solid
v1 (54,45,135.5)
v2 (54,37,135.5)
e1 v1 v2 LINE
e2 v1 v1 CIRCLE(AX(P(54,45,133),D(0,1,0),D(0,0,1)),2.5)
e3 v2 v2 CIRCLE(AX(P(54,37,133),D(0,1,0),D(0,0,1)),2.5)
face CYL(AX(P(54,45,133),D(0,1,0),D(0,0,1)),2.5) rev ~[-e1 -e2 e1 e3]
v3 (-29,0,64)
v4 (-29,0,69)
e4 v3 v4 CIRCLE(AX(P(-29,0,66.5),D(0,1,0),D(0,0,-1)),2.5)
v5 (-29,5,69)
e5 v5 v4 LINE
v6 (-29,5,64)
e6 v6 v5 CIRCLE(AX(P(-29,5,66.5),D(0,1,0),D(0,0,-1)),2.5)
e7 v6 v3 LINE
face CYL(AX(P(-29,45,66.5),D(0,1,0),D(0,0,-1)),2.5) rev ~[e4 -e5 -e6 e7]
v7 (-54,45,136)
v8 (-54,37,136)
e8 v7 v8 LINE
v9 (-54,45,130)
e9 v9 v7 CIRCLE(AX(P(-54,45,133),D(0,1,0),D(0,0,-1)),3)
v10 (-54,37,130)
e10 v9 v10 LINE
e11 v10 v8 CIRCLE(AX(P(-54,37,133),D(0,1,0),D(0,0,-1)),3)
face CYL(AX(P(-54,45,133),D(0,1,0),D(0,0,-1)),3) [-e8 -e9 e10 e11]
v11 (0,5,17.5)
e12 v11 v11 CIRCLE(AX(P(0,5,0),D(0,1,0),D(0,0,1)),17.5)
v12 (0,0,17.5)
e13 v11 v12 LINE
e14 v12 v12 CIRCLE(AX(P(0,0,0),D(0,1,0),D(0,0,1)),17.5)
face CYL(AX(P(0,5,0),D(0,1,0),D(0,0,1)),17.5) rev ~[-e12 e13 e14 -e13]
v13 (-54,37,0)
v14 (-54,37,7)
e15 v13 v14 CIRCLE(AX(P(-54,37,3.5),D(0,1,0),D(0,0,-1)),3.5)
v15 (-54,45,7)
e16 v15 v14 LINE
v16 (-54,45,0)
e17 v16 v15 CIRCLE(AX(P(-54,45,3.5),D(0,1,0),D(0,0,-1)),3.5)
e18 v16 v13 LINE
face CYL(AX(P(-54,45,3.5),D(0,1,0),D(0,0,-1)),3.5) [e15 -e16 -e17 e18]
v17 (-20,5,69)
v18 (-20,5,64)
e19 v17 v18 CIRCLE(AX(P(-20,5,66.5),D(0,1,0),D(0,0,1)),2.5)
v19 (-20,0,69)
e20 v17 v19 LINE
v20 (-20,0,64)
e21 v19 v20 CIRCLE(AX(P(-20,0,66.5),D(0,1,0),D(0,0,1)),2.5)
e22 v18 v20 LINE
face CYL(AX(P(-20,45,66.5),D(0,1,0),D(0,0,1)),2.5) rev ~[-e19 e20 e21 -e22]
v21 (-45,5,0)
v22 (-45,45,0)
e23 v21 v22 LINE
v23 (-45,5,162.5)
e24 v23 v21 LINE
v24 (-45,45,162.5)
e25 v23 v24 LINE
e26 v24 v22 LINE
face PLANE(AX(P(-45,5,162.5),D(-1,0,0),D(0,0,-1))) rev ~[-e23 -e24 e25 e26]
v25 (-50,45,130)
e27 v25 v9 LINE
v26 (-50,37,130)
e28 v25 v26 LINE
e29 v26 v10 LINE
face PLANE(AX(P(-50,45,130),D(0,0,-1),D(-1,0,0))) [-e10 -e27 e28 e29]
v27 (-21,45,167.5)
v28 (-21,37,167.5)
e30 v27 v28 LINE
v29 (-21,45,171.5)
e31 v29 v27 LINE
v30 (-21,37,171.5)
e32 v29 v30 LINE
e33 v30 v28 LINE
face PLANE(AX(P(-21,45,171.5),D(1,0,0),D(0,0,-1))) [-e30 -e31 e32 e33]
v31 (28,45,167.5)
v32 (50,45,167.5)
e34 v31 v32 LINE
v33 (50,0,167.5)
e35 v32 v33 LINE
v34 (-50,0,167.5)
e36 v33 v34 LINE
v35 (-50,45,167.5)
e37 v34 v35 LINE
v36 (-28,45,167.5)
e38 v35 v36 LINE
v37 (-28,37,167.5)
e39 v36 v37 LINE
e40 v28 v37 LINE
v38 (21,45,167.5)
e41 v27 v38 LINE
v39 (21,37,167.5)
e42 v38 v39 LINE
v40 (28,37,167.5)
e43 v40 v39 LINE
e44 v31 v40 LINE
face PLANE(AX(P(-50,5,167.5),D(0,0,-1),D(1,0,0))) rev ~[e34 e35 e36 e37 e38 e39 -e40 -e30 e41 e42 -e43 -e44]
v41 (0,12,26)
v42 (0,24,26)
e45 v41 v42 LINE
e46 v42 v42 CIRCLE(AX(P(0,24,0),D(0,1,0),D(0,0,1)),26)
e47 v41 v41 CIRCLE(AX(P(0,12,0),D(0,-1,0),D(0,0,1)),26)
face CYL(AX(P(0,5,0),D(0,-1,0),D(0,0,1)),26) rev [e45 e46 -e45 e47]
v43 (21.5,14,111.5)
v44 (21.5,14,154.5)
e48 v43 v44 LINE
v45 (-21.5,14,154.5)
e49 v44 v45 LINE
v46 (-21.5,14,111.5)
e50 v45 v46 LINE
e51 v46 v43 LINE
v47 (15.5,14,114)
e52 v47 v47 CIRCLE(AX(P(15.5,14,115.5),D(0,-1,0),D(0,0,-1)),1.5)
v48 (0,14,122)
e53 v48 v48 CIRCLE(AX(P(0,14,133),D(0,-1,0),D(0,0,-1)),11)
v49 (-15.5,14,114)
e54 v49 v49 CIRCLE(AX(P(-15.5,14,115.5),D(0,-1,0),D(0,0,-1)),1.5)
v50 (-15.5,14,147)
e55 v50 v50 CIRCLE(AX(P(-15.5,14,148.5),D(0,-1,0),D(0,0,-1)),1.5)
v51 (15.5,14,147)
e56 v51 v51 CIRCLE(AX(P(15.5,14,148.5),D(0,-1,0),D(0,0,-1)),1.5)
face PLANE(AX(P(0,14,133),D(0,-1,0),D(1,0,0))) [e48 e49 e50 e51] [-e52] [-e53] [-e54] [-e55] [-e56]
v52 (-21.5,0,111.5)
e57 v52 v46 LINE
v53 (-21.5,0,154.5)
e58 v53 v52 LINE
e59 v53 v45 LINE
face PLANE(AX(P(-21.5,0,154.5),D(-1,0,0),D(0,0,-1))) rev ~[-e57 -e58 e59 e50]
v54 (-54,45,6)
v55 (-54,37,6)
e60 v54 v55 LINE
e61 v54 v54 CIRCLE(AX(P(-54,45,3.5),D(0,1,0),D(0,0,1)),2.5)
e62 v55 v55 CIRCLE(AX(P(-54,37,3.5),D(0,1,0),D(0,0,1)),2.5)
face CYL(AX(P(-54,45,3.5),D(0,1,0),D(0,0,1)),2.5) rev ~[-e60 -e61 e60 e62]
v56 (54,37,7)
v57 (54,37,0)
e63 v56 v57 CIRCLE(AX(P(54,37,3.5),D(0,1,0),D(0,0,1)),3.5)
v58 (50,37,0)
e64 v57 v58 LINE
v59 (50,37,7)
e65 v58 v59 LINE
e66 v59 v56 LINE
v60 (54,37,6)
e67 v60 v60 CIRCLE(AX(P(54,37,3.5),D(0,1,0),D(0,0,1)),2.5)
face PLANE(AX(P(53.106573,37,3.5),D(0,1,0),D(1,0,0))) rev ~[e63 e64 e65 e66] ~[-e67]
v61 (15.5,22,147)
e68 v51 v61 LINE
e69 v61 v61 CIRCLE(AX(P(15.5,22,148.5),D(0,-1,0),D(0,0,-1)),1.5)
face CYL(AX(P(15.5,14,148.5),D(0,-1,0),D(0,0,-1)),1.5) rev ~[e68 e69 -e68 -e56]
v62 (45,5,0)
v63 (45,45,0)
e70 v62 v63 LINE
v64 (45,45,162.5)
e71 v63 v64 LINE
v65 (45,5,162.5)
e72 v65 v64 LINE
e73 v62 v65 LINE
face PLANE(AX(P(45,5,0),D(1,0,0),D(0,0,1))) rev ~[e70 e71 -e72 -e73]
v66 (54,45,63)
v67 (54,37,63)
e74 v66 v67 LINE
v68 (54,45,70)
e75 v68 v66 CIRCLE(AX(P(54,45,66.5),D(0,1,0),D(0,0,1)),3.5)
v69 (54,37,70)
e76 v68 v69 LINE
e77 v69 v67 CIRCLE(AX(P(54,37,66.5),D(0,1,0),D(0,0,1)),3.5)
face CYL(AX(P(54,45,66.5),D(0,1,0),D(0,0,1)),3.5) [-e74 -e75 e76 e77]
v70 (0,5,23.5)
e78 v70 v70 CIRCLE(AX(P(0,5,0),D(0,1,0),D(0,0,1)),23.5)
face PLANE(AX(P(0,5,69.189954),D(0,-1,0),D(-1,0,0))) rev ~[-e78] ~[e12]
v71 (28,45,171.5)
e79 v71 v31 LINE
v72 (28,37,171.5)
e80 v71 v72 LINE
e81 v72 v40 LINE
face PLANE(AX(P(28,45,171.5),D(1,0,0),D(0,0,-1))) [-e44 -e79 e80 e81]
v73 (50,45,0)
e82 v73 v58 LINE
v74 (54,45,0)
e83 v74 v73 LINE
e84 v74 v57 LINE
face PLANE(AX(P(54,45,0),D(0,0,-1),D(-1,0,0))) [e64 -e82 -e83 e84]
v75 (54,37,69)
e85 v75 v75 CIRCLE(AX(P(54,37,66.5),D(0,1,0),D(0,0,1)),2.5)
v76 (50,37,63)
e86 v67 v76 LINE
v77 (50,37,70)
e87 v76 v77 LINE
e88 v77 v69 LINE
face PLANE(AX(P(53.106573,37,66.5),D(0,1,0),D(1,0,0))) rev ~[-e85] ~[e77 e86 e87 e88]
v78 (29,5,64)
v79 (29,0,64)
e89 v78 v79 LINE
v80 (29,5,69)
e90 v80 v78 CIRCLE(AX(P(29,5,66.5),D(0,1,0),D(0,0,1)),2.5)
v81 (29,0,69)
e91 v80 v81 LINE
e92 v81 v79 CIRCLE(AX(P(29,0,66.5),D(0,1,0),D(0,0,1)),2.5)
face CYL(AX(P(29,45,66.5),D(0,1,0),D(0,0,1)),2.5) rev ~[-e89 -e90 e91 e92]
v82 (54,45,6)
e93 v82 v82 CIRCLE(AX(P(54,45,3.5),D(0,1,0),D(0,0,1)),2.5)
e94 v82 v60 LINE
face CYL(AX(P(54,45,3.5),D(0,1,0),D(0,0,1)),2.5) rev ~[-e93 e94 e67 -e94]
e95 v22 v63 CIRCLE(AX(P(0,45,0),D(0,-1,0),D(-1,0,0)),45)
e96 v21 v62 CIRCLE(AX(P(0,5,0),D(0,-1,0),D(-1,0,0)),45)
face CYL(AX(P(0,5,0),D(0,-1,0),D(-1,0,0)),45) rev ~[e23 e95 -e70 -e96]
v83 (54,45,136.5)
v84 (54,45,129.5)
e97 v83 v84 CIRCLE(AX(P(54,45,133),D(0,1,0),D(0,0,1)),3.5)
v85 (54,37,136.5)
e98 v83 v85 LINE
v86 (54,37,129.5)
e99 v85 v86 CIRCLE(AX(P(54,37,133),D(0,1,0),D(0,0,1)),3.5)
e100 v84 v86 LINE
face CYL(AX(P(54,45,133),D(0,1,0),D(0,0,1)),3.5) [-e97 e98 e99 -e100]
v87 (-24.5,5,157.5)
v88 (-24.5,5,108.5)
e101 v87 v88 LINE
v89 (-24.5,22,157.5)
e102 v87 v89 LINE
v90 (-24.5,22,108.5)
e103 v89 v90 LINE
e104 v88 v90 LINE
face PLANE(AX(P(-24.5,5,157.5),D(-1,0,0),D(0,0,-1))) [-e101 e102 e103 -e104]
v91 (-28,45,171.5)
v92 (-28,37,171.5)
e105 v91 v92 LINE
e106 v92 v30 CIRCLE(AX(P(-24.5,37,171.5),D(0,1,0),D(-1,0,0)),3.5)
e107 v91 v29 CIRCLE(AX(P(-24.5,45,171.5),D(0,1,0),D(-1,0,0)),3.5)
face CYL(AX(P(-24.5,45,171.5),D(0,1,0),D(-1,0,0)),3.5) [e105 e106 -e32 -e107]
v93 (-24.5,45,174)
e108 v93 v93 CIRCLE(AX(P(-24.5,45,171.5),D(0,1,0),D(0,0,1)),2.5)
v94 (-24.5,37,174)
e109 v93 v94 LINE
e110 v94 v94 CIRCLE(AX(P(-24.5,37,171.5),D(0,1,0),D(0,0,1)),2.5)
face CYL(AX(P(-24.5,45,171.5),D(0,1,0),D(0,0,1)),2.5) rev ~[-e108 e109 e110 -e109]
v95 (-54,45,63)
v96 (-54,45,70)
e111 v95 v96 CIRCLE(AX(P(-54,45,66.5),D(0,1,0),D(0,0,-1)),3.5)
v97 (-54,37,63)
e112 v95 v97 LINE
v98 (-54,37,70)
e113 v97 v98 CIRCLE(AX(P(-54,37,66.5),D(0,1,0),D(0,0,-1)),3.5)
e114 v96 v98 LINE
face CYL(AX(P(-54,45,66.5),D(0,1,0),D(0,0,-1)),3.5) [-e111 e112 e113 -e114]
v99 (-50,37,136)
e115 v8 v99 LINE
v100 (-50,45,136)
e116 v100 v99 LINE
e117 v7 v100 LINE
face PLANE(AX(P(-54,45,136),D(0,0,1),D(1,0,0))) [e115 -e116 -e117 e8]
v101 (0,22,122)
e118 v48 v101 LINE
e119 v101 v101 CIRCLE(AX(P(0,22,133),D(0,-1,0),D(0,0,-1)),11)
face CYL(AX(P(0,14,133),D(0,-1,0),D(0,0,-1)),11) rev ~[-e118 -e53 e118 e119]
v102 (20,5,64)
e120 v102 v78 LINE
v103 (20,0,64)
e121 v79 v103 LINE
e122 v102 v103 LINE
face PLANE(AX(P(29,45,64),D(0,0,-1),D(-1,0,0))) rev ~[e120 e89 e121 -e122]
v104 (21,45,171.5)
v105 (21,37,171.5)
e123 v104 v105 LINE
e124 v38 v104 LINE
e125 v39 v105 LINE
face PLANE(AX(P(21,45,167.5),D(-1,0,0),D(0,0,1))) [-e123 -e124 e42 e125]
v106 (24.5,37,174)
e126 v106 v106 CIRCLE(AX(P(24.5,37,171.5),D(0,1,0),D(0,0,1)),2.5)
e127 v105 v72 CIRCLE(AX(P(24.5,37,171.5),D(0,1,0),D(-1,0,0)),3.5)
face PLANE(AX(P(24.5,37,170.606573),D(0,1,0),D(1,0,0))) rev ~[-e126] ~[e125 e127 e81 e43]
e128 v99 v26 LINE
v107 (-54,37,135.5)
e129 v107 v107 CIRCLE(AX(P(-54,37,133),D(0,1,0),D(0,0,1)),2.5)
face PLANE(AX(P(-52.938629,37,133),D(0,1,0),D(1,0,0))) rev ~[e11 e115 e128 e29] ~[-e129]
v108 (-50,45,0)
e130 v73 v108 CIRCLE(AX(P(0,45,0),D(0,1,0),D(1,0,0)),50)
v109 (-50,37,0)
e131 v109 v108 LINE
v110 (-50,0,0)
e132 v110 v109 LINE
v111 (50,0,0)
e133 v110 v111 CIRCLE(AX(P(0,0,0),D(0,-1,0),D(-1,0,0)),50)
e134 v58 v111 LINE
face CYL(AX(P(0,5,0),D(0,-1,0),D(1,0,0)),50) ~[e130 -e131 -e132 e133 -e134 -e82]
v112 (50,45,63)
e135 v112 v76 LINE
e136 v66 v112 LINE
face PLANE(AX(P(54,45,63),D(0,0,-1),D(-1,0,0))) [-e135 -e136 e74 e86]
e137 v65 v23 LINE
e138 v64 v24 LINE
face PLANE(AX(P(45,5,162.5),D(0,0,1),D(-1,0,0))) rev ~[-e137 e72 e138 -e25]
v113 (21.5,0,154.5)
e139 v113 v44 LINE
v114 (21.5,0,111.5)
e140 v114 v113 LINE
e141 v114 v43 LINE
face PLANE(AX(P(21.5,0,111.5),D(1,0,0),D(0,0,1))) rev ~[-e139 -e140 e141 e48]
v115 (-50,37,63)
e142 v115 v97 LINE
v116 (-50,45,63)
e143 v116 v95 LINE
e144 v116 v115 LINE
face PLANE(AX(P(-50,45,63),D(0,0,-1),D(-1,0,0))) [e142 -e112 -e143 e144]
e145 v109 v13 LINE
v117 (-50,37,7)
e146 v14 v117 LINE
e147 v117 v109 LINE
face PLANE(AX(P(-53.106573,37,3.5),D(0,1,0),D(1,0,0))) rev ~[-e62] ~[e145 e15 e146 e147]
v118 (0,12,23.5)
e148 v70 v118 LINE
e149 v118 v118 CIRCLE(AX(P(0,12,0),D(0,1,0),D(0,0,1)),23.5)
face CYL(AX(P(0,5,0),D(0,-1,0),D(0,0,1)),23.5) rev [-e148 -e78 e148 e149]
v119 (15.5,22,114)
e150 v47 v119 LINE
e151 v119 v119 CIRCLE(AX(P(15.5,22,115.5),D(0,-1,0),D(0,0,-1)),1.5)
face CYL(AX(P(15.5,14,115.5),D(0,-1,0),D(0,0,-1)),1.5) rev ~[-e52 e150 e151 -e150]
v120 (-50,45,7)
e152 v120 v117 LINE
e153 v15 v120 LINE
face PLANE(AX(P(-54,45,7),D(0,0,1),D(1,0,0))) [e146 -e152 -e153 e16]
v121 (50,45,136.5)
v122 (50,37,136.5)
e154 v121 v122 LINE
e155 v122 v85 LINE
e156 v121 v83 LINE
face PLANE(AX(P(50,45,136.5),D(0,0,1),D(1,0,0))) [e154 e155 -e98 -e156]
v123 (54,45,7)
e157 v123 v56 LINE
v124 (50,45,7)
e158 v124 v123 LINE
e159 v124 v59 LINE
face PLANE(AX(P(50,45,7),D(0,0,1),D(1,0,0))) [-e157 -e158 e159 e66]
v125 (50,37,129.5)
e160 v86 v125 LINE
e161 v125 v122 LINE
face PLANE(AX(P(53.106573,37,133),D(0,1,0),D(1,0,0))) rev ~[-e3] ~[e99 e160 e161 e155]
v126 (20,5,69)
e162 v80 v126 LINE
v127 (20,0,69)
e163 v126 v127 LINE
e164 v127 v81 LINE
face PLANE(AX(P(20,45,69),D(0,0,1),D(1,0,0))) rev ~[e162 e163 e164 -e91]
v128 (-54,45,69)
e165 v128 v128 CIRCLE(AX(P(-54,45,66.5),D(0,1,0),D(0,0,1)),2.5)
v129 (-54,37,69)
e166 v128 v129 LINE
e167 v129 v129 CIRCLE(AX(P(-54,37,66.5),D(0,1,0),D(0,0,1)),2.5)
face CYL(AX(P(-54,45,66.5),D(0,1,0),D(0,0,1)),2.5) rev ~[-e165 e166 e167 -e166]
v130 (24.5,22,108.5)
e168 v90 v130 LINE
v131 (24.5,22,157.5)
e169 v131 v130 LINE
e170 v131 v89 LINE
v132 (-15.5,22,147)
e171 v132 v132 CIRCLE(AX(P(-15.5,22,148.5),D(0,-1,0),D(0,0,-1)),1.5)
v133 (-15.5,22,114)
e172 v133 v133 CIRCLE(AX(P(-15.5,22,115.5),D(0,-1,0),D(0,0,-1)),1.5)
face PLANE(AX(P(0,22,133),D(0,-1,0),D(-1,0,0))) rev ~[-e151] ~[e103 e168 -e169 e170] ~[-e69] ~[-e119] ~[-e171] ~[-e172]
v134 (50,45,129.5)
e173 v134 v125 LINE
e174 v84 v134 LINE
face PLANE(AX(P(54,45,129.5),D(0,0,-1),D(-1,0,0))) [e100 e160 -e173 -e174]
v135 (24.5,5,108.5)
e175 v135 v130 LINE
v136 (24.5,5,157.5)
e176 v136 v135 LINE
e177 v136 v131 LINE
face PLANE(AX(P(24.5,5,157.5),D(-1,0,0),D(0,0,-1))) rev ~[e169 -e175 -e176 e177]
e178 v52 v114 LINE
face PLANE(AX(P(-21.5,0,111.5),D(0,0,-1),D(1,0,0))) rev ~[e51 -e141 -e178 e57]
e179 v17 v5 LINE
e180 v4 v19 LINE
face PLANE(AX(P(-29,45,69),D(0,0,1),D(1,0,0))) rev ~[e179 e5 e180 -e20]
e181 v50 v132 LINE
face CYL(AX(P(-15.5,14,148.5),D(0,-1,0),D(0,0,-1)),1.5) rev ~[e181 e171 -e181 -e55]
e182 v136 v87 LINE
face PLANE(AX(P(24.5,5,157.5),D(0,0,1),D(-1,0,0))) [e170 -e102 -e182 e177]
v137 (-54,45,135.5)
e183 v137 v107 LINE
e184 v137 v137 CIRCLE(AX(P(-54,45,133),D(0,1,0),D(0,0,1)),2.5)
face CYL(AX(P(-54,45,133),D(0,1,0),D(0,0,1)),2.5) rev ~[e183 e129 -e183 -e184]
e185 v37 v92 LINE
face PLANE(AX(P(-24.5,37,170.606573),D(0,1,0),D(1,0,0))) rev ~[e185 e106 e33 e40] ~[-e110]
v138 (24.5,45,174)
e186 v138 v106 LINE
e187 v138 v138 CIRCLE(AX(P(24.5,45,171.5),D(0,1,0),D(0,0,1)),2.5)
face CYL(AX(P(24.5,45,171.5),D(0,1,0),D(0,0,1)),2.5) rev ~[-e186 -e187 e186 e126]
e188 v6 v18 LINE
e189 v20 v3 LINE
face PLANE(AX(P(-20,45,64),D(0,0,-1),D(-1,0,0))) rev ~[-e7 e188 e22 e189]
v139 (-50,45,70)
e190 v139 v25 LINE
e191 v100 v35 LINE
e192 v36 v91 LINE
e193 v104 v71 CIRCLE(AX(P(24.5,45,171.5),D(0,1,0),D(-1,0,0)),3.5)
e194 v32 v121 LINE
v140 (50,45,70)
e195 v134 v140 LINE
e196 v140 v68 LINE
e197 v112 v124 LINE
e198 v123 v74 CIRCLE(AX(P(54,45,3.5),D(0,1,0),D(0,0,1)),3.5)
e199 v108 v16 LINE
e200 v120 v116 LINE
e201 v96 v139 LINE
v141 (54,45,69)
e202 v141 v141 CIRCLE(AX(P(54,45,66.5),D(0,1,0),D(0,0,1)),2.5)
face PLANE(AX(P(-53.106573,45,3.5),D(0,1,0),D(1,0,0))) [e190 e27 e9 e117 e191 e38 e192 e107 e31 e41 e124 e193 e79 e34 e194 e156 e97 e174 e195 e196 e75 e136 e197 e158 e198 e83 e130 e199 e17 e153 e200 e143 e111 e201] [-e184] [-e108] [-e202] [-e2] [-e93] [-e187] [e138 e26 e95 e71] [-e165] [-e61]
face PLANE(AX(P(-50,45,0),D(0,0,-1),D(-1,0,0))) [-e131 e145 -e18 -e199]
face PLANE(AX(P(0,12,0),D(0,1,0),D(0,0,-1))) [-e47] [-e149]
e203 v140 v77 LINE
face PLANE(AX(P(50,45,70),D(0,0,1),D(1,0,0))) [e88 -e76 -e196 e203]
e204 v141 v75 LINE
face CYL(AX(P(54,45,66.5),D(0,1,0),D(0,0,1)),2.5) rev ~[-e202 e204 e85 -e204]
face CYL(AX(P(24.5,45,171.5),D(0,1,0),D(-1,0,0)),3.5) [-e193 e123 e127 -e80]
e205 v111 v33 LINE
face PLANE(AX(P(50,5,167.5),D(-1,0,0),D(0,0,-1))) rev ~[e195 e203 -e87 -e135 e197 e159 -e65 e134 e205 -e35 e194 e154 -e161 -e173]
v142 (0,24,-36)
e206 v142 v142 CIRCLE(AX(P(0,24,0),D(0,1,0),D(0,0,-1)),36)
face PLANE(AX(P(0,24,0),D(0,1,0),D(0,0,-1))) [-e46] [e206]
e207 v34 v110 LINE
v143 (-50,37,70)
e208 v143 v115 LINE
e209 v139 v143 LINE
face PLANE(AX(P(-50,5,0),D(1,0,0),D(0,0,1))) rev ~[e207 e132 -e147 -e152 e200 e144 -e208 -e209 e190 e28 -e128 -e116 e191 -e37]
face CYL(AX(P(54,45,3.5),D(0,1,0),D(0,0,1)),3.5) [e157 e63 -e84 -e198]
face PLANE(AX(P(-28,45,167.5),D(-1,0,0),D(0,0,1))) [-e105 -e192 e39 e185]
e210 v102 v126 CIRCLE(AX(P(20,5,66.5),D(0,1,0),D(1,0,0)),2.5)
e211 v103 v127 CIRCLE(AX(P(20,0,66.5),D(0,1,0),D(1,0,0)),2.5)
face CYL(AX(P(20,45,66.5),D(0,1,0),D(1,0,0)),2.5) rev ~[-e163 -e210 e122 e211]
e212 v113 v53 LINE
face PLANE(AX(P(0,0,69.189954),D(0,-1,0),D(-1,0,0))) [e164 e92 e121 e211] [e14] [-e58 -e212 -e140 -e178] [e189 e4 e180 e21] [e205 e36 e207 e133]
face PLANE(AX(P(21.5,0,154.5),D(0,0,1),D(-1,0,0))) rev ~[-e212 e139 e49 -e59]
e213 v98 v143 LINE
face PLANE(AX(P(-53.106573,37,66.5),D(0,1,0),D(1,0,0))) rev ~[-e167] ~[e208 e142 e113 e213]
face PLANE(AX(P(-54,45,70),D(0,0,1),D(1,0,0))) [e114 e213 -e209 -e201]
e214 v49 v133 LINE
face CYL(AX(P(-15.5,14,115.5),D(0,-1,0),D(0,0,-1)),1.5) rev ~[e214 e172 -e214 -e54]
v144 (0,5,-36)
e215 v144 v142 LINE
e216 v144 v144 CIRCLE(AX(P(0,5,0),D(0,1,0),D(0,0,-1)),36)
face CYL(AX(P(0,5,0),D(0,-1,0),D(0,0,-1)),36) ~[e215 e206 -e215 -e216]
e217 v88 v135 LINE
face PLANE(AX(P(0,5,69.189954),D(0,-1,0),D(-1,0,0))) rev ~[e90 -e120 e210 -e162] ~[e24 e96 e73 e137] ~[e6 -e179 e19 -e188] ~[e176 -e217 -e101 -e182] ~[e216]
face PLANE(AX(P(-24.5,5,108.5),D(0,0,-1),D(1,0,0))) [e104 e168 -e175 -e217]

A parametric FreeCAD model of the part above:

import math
import FreeCAD as App
import Part
import Sketcher
from FreeCAD import Vector

doc = App.newDocument("Part")
params = doc.addObject("Spreadsheet::Sheet", "Params")
for row, (alias, value) in enumerate([
    ("sketch1_radius", "50 mm"),
    ("sketch1_height", "167.5 mm"),
    ("pad1_length", "5 mm"),
    ("sketch2_radius", "50 mm"),
    ("sketch2_radius2", "45 mm"),
    ("sketch2_height", "167.5 mm"),
    ("sketch2_height2", "162.5 mm"),
    ("pad2_length", "40 mm"),
    ("sketch3_diameter", "35 mm"),
    ("pocket1_length", "40 mm"),
    ("sketch4_diameter", "52 mm"),
    ("sketch4_diameter2", "47 mm"),
    ("pad3_length", "7 mm"),
    ("sketch5_diameter", "72 mm"),
    ("sketch5_diameter2", "52 mm"),
    ("pad4_length", "19 mm"),
    ("sketch6_width", "49 mm"),
    ("pad5_length", "17 mm"),
    ("sketch7_width", "43 mm"),
    ("pocket2_length", "14 mm"),
    ("sketch8_diameter", "3 mm"),
    ("sketch8_diameter2", "22 mm"),
    ("pocket3_length", "14 mm"),
    ("sketch9_radius", "2.5 mm"),
    ("sketch9_width", "9 mm"),
    ("pocket4_length", "45 mm"),
    ("sketch10_diameter", "5 mm"),
    ("sketch10_radius", "3 mm"),
    ("sketch10_radius2", "3.5 mm"),
    ("sketch10_width", "4 mm"),
    ("pad6_length", "8 mm"),
], start=1):
    params.set(f"A{row}", alias)
    params.set(f"B{row}", "=" + value)
    params.setAlias(f"B{row}", alias)

body = doc.addObject("PartDesign::Body", "Body")

sketch1 = body.newObject("Sketcher::SketchObject", "Sketch")
sketch1.AttachmentSupport = (doc.getObject("XZ_Plane"), [""])
sketch1.MapMode = "FlatFace"
sketch1.addGeometry([
    Part.LineSegment(Vector(50, 167.5, 0), Vector(50, 0, 0)),
    Part.ArcOfCircle(Part.Circle(Vector(0, 0, 0), Vector(0, 0, 1), 50), math.radians(180), math.radians(360)),
    Part.LineSegment(Vector(-50, 0, 0), Vector(-50, 167.5, 0)),
    Part.LineSegment(Vector(-50, 167.5, 0), Vector(50, 167.5, 0)),
], False)
sketch1.addConstraint([
    Sketcher.Constraint("Tangent", 0, 2, 1, 2),
    Sketcher.Constraint("Tangent", 1, 1, 2, 1),
    Sketcher.Constraint("Coincident", 2, 2, 3, 1),
    Sketcher.Constraint("Coincident", 3, 2, 0, 1),
    Sketcher.Constraint("Vertical", 0),
    Sketcher.Constraint("Vertical", 2),
    Sketcher.Constraint("Horizontal", 3),
    Sketcher.Constraint("Coincident", 1, 3, -1, 1),
    Sketcher.Constraint("Radius", 1, 50.0),
    Sketcher.Constraint("DistanceY", 0, 2, 0, 1, 167.5),
])
sketch1.setExpression("Constraints[8]", "Params.sketch1_radius")
sketch1.setExpression("Constraints[9]", "Params.sketch1_height")
pad1 = body.newObject("PartDesign::Pad", "Pad")
pad1.Profile = sketch1
pad1.setExpression("Length", "Params.pad1_length")
pad1.Reversed = True

sketch2 = body.newObject("Sketcher::SketchObject", "Sketch001")
sketch2.AttachmentSupport = (doc.getObject("XZ_Plane"), [""])
sketch2.MapMode = "FlatFace"
sketch2.AttachmentOffset = App.Placement(Vector(0, 0, -5), App.Rotation())
sketch2.addGeometry([
    Part.ArcOfCircle(Part.Circle(Vector(0, 0, 0), Vector(0, 0, 1), 50), math.radians(180), math.radians(360)),
    Part.LineSegment(Vector(-50, 0, 0), Vector(-50, 167.5, 0)),
    Part.LineSegment(Vector(-50, 167.5, 0), Vector(50, 167.5, 0)),
    Part.LineSegment(Vector(50, 167.5, 0), Vector(50, 0, 0)),
    Part.LineSegment(Vector(45, 162.5, 0), Vector(-45, 162.5, 0)),
    Part.LineSegment(Vector(-45, 162.5, 0), Vector(-45, 0, 0)),
    Part.ArcOfCircle(Part.Circle(Vector(0, 0, 0), Vector(0, 0, 1), 45), math.radians(180), math.radians(360)),
    Part.LineSegment(Vector(45, 0, 0), Vector(45, 162.5, 0)),
], False)
sketch2.addConstraint([
    Sketcher.Constraint("Tangent", 0, 1, 1, 1),
    Sketcher.Constraint("Coincident", 1, 2, 2, 1),
    Sketcher.Constraint("Coincident", 2, 2, 3, 1),
    Sketcher.Constraint("Tangent", 3, 2, 0, 2),
    Sketcher.Constraint("Coincident", 4, 2, 5, 1),
    Sketcher.Constraint("Tangent", 5, 2, 6, 1),
    Sketcher.Constraint("Tangent", 6, 2, 7, 1),
    Sketcher.Constraint("Coincident", 7, 2, 4, 1),
    Sketcher.Constraint("Vertical", 1),
    Sketcher.Constraint("Horizontal", 2),
    Sketcher.Constraint("Vertical", 3),
    Sketcher.Constraint("Horizontal", 4),
    Sketcher.Constraint("Vertical", 5),
    Sketcher.Constraint("Vertical", 7),
    Sketcher.Constraint("Coincident", 0, 3, -1, 1),
    Sketcher.Constraint("Coincident", 6, 3, -1, 1),
    Sketcher.Constraint("Radius", 0, 50.0),
    Sketcher.Constraint("Radius", 6, 45.0),
    Sketcher.Constraint("DistanceY", 1, 1, 1, 2, 167.5),
    Sketcher.Constraint("DistanceY", 5, 2, 5, 1, 162.5),
])
sketch2.setExpression("Constraints[16]", "Params.sketch2_radius")
sketch2.setExpression("Constraints[17]", "Params.sketch2_radius2")
sketch2.setExpression("Constraints[18]", "Params.sketch2_height")
sketch2.setExpression("Constraints[19]", "Params.sketch2_height2")
pad2 = body.newObject("PartDesign::Pad", "Pad001")
pad2.Profile = sketch2
pad2.setExpression("Length", "Params.pad2_length")
pad2.Reversed = True

sketch3 = body.newObject("Sketcher::SketchObject", "Sketch002")
sketch3.AttachmentSupport = (doc.getObject("XZ_Plane"), [""])
sketch3.MapMode = "FlatFace"
sketch3.AttachmentOffset = App.Placement(Vector(0, 0, -5), App.Rotation())
sketch3.addGeometry(Part.Circle(Vector(0, 0, 0), Vector(0, 0, 1), 17.5), False)
sketch3.addConstraint([
    Sketcher.Constraint("Coincident", 0, 3, -1, 1),
    Sketcher.Constraint("Diameter", 0, 35.0),
])
sketch3.setExpression("Constraints[1]", "Params.sketch3_diameter")
pocket1 = body.newObject("PartDesign::Pocket", "Pocket")
pocket1.Profile = sketch3
pocket1.setExpression("Length", "Params.pocket1_length")
pocket1.Reversed = True

sketch4 = body.newObject("Sketcher::SketchObject", "Sketch003")
sketch4.AttachmentSupport = (doc.getObject("XZ_Plane"), [""])
sketch4.MapMode = "FlatFace"
sketch4.AttachmentOffset = App.Placement(Vector(0, 0, -5), App.Rotation())
sketch4.addGeometry([
    Part.Circle(Vector(0, 0, 0), Vector(0, 0, 1), 26),
    Part.Circle(Vector(0, 0, 0), Vector(0, 0, 1), 23.5),
], False)
sketch4.addConstraint([
    Sketcher.Constraint("Coincident", 0, 3, -1, 1),
    Sketcher.Constraint("Coincident", 1, 3, -1, 1),
    Sketcher.Constraint("Diameter", 0, 52.0),
    Sketcher.Constraint("Diameter", 1, 47.0),
])
sketch4.setExpression("Constraints[2]", "Params.sketch4_diameter")
sketch4.setExpression("Constraints[3]", "Params.sketch4_diameter2")
pad3 = body.newObject("PartDesign::Pad", "Pad002")
pad3.Profile = sketch4
pad3.setExpression("Length", "Params.pad3_length")
pad3.Reversed = True

sketch5 = body.newObject("Sketcher::SketchObject", "Sketch004")
sketch5.AttachmentSupport = (doc.getObject("XZ_Plane"), [""])
sketch5.MapMode = "FlatFace"
sketch5.AttachmentOffset = App.Placement(Vector(0, 0, -5), App.Rotation())
sketch5.addGeometry([
    Part.Circle(Vector(0, 0, 0), Vector(0, 0, 1), 36),
    Part.Circle(Vector(0, 0, 0), Vector(0, 0, 1), 26),
], False)
sketch5.addConstraint([
    Sketcher.Constraint("Coincident", 0, 3, -1, 1),
    Sketcher.Constraint("Coincident", 1, 3, -1, 1),
    Sketcher.Constraint("Diameter", 0, 72.0),
    Sketcher.Constraint("Diameter", 1, 52.0),
])
sketch5.setExpression("Constraints[2]", "Params.sketch5_diameter")
sketch5.setExpression("Constraints[3]", "Params.sketch5_diameter2")
pad4 = body.newObject("PartDesign::Pad", "Pad003")
pad4.Profile = sketch5
pad4.setExpression("Length", "Params.pad4_length")
pad4.Reversed = True

sketch6 = body.newObject("Sketcher::SketchObject", "Sketch005")
sketch6.AttachmentSupport = (doc.getObject("XZ_Plane"), [""])
sketch6.MapMode = "FlatFace"
sketch6.AttachmentOffset = App.Placement(Vector(0, 0, -5), App.Rotation())
sketch6.addGeometry([
    Part.LineSegment(Vector(24.5, 157.5, 0), Vector(24.5, 108.5, 0)),
    Part.LineSegment(Vector(24.5, 108.5, 0), Vector(-24.5, 108.5, 0)),
    Part.LineSegment(Vector(-24.5, 108.5, 0), Vector(-24.5, 157.5, 0)),
    Part.LineSegment(Vector(-24.5, 157.5, 0), Vector(24.5, 157.5, 0)),
], False)
sketch6.addConstraint([
    Sketcher.Constraint("Coincident", 0, 2, 1, 1),
    Sketcher.Constraint("Coincident", 1, 2, 2, 1),
    Sketcher.Constraint("Coincident", 2, 2, 3, 1),
    Sketcher.Constraint("Coincident", 3, 2, 0, 1),
    Sketcher.Constraint("Vertical", 0),
    Sketcher.Constraint("Horizontal", 1),
    Sketcher.Constraint("Vertical", 2),
    Sketcher.Constraint("Horizontal", 3),
    Sketcher.Constraint("Equal", 3, 0),
    Sketcher.Constraint("DistanceX", 1, 2, 1, 1, 49.0),
    Sketcher.Constraint("DistanceX", -1, 1, 0, 2, 24.5),
    Sketcher.Constraint("DistanceY", -1, 1, 0, 2, 108.5),
])
sketch6.setExpression("Constraints[9]", "Params.sketch6_width")
pad5 = body.newObject("PartDesign::Pad", "Pad004")
pad5.Profile = sketch6
pad5.setExpression("Length", "Params.pad5_length")
pad5.Reversed = True

sketch7 = body.newObject("Sketcher::SketchObject", "Sketch006")
sketch7.AttachmentSupport = (doc.getObject("XZ_Plane"), [""])
sketch7.MapMode = "FlatFace"
sketch7.addGeometry([
    Part.LineSegment(Vector(21.5, 154.5, 0), Vector(-21.5, 154.5, 0)),
    Part.LineSegment(Vector(-21.5, 154.5, 0), Vector(-21.5, 111.5, 0)),
    Part.LineSegment(Vector(-21.5, 111.5, 0), Vector(21.5, 111.5, 0)),
    Part.LineSegment(Vector(21.5, 111.5, 0), Vector(21.5, 154.5, 0)),
], False)
sketch7.addConstraint([
    Sketcher.Constraint("Coincident", 0, 2, 1, 1),
    Sketcher.Constraint("Coincident", 1, 2, 2, 1),
    Sketcher.Constraint("Coincident", 2, 2, 3, 1),
    Sketcher.Constraint("Coincident", 3, 2, 0, 1),
    Sketcher.Constraint("Horizontal", 0),
    Sketcher.Constraint("Vertical", 1),
    Sketcher.Constraint("Horizontal", 2),
    Sketcher.Constraint("Vertical", 3),
    Sketcher.Constraint("Equal", 2, 1),
    Sketcher.Constraint("DistanceX", 0, 2, 0, 1, 43.0),
    Sketcher.Constraint("DistanceX", 0, 2, -1, 1, 21.5),
    Sketcher.Constraint("DistanceY", -1, 1, 0, 2, 154.5),
])
sketch7.setExpression("Constraints[9]", "Params.sketch7_width")
pocket2 = body.newObject("PartDesign::Pocket", "Pocket001")
pocket2.Profile = sketch7
pocket2.setExpression("Length", "Params.pocket2_length")

sketch8 = body.newObject("Sketcher::SketchObject", "Sketch007")
sketch8.AttachmentSupport = (doc.getObject("XZ_Plane"), [""])
sketch8.MapMode = "FlatFace"
sketch8.AttachmentOffset = App.Placement(Vector(0, 0, -14), App.Rotation())
sketch8.addGeometry([
    Part.Circle(Vector(-15.5, 148.5, 0), Vector(0, 0, 1), 1.5),
    Part.Circle(Vector(15.5, 148.5, 0), Vector(0, 0, 1), 1.5),
    Part.Circle(Vector(-15.5, 115.5, 0), Vector(0, 0, 1), 1.5),
    Part.Circle(Vector(15.5, 115.5, 0), Vector(0, 0, 1), 1.5),
    Part.Circle(Vector(0, 133, 0), Vector(0, 0, 1), 11),
], False)
sketch8.addConstraint([
    Sketcher.Constraint("Equal", 0, 1),
    Sketcher.Constraint("Equal", 1, 2),
    Sketcher.Constraint("Equal", 2, 3),
    Sketcher.Constraint("Symmetric", 0, 3, 1, 3, -2),
    Sketcher.Constraint("Symmetric", 2, 3, 3, 3, -2),
    Sketcher.Constraint("PointOnObject", 4, 3, -2),
    Sketcher.Constraint("Vertical", 0, 3, 2, 3),
    Sketcher.Constraint("Diameter", 0, 3.0),
    Sketcher.Constraint("Diameter", 4, 22.0),
    Sketcher.Constraint("DistanceY", -1, 1, 4, 3, 133.0),
    Sketcher.Constraint("DistanceX", 0, 3, 1, 3, 31.0),
    Sketcher.Constraint("DistanceY", 2, 3, 0, 3, 33.0),
    Sketcher.Constraint("DistanceY", -1, 1, 0, 3, 148.5),
])
sketch8.setExpression("Constraints[7]", "Params.sketch8_diameter")
sketch8.setExpression("Constraints[8]", "Params.sketch8_diameter2")
pocket3 = body.newObject("PartDesign::Pocket", "Pocket002")
pocket3.Profile = sketch8
pocket3.setExpression("Length", "Params.pocket3_length")

sketch9 = body.newObject("Sketcher::SketchObject", "Sketch008")
sketch9.AttachmentSupport = (doc.getObject("XZ_Plane"), [""])
sketch9.MapMode = "FlatFace"
sketch9.AttachmentOffset = App.Placement(Vector(0, 0, -45), App.Rotation())
sketch9.addGeometry([
    Part.LineSegment(Vector(-20, 64, 0), Vector(-29, 64, 0)),
    Part.ArcOfCircle(Part.Circle(Vector(-29, 66.5, 0), Vector(0, 0, 1), 2.5), math.radians(90), math.radians(270)),
    Part.LineSegment(Vector(-29, 69, 0), Vector(-20, 69, 0)),
    Part.ArcOfCircle(Part.Circle(Vector(-20, 66.5, 0), Vector(0, 0, 1), 2.5), math.radians(-90), math.radians(90)),
    Part.LineSegment(Vector(29, 64, 0), Vector(20, 64, 0)),
    Part.ArcOfCircle(Part.Circle(Vector(20, 66.5, 0), Vector(0, 0, 1), 2.5), math.radians(90), math.radians(270)),
    Part.LineSegment(Vector(20, 69, 0), Vector(29, 69, 0)),
    Part.ArcOfCircle(Part.Circle(Vector(29, 66.5, 0), Vector(0, 0, 1), 2.5), math.radians(-90), math.radians(90)),
], False)
sketch9.addConstraint([
    Sketcher.Constraint("Tangent", 0, 2, 1, 2),
    Sketcher.Constraint("Tangent", 1, 1, 2, 1),
    Sketcher.Constraint("Tangent", 2, 2, 3, 2),
    Sketcher.Constraint("Tangent", 3, 1, 0, 1),
    Sketcher.Constraint("Tangent", 4, 2, 5, 2),
    Sketcher.Constraint("Tangent", 5, 1, 6, 1),
    Sketcher.Constraint("Tangent", 6, 2, 7, 2),
    Sketcher.Constraint("Tangent", 7, 1, 4, 1),
    Sketcher.Constraint("Horizontal", 0),
    Sketcher.Constraint("Horizontal", 2),
    Sketcher.Constraint("Horizontal", 4),
    Sketcher.Constraint("Horizontal", 6),
    Sketcher.Constraint("Equal", 3, 5),
    Sketcher.Constraint("Symmetric", 3, 3, 5, 3, -2),
    Sketcher.Constraint("Equal", 2, 4),
    Sketcher.Constraint("Radius", 1, 2.5),
    Sketcher.Constraint("DistanceX", 0, 2, 0, 1, 9.0),
    Sketcher.Constraint("DistanceX", 1, 3, -1, 1, 29.0),
    Sketcher.Constraint("DistanceY", -1, 1, 0, 2, 64.0),
])
sketch9.setExpression("Constraints[15]", "Params.sketch9_radius")
sketch9.setExpression("Constraints[16]", "Params.sketch9_width")
pocket4 = body.newObject("PartDesign::Pocket", "Pocket003")
pocket4.Profile = sketch9
pocket4.setExpression("Length", "Params.pocket4_length")
pocket4.Reversed = True

sketch10 = body.newObject("Sketcher::SketchObject", "Sketch009")
sketch10.AttachmentSupport = (doc.getObject("XZ_Plane"), [""])
sketch10.MapMode = "FlatFace"
sketch10.AttachmentOffset = App.Placement(Vector(0, 0, -45), App.Rotation())
sketch10.addGeometry([
    Part.LineSegment(Vector(-54, 70, 0), Vector(-50, 70, 0)),
    Part.LineSegment(Vector(-50, 70, 0), Vector(-50, 63, 0)),
    Part.LineSegment(Vector(-50, 63, 0), Vector(-54, 63, 0)),
    Part.ArcOfCircle(Part.Circle(Vector(-54, 66.5, 0), Vector(0, 0, 1), 3.5), math.radians(90), math.radians(270)),
    Part.Circle(Vector(-54, 66.5, 0), Vector(0, 0, 1), 2.5),
    Part.LineSegment(Vector(-54, 7, 0), Vector(-50, 7, 0)),
    Part.LineSegment(Vector(-50, 7, 0), Vector(-50, 0, 0)),
    Part.LineSegment(Vector(-50, 0, 0), Vector(-54, 0, 0)),
    Part.ArcOfCircle(Part.Circle(Vector(-54, 3.5, 0), Vector(0, 0, 1), 3.5), math.radians(90), math.radians(270)),
    Part.Circle(Vector(-54, 3.5, 0), Vector(0, 0, 1), 2.5),
    Part.LineSegment(Vector(-54, 136, 0), Vector(-50, 136, 0)),
    Part.LineSegment(Vector(-50, 136, 0), Vector(-50, 130, 0)),
    Part.LineSegment(Vector(-50, 130, 0), Vector(-54, 130, 0)),
    Part.ArcOfCircle(Part.Circle(Vector(-54, 133, 0), Vector(0, 0, 1), 3), math.radians(90), math.radians(270)),
    Part.Circle(Vector(-54, 133, 0), Vector(0, 0, 1), 2.5),
    Part.LineSegment(Vector(28, 171.5, 0), Vector(28, 167.5, 0)),
    Part.LineSegment(Vector(28, 167.5, 0), Vector(21, 167.5, 0)),
    Part.LineSegment(Vector(21, 167.5, 0), Vector(21, 171.5, 0)),
    Part.ArcOfCircle(Part.Circle(Vector(24.5, 171.5, 0), Vector(0, 0, 1), 3.5), math.radians(0), math.radians(180)),
    Part.Circle(Vector(24.5, 171.5, 0), Vector(0, 0, 1), 2.5),
    Part.LineSegment(Vector(-21, 171.5, 0), Vector(-21, 167.5, 0)),
    Part.LineSegment(Vector(-21, 167.5, 0), Vector(-28, 167.5, 0)),
    Part.LineSegment(Vector(-28, 167.5, 0), Vector(-28, 171.5, 0)),
    Part.ArcOfCircle(Part.Circle(Vector(-24.5, 171.5, 0), Vector(0, 0, 1), 3.5), math.radians(0), math.radians(180)),
    Part.Circle(Vector(-24.5, 171.5, 0), Vector(0, 0, 1), 2.5),
    Part.LineSegment(Vector(54, 129.5, 0), Vector(50, 129.5, 0)),
    Part.LineSegment(Vector(50, 129.5, 0), Vector(50, 136.5, 0)),
    Part.LineSegment(Vector(50, 136.5, 0), Vector(54, 136.5, 0)),
    Part.ArcOfCircle(Part.Circle(Vector(54, 133, 0), Vector(0, 0, 1), 3.5), math.radians(-90), math.radians(90)),
    Part.Circle(Vector(54, 133, 0), Vector(0, 0, 1), 2.5),
    Part.LineSegment(Vector(54, 63, 0), Vector(50, 63, 0)),
    Part.LineSegment(Vector(50, 63, 0), Vector(50, 70, 0)),
    Part.LineSegment(Vector(50, 70, 0), Vector(54, 70, 0)),
    Part.ArcOfCircle(Part.Circle(Vector(54, 66.5, 0), Vector(0, 0, 1), 3.5), math.radians(-90), math.radians(90)),
    Part.Circle(Vector(54, 66.5, 0), Vector(0, 0, 1), 2.5),
    Part.LineSegment(Vector(54, 0, 0), Vector(50, 0, 0)),
    Part.LineSegment(Vector(50, 0, 0), Vector(50, 7, 0)),
    Part.LineSegment(Vector(50, 7, 0), Vector(54, 7, 0)),
    Part.ArcOfCircle(Part.Circle(Vector(54, 3.5, 0), Vector(0, 0, 1), 3.5), math.radians(-90), math.radians(90)),
    Part.Circle(Vector(54, 3.5, 0), Vector(0, 0, 1), 2.5),
], False)
sketch10.addConstraint([
    Sketcher.Constraint("Coincident", 0, 2, 1, 1),
    Sketcher.Constraint("Coincident", 1, 2, 2, 1),
    Sketcher.Constraint("Tangent", 2, 2, 3, 2),
    Sketcher.Constraint("Tangent", 3, 1, 0, 1),
    Sketcher.Constraint("Coincident", 5, 2, 6, 1),
    Sketcher.Constraint("Coincident", 6, 2, 7, 1),
    Sketcher.Constraint("Tangent", 7, 2, 8, 2),
    Sketcher.Constraint("Tangent", 8, 1, 5, 1),
    Sketcher.Constraint("Coincident", 10, 2, 11, 1),
    Sketcher.Constraint("Coincident", 11, 2, 12, 1),
    Sketcher.Constraint("Tangent", 12, 2, 13, 2),
    Sketcher.Constraint("Tangent", 13, 1, 10, 1),
    Sketcher.Constraint("Coincident", 15, 2, 16, 1),
    Sketcher.Constraint("Coincident", 16, 2, 17, 1),
    Sketcher.Constraint("Tangent", 17, 2, 18, 2),
    Sketcher.Constraint("Tangent", 18, 1, 15, 1),
    Sketcher.Constraint("Coincident", 20, 2, 21, 1),
    Sketcher.Constraint("Coincident", 21, 2, 22, 1),
    Sketcher.Constraint("Tangent", 22, 2, 23, 2),
    Sketcher.Constraint("Tangent", 23, 1, 20, 1),
    Sketcher.Constraint("Coincident", 25, 2, 26, 1),
    Sketcher.Constraint("Coincident", 26, 2, 27, 1),
    Sketcher.Constraint("Tangent", 27, 2, 28, 2),
    Sketcher.Constraint("Tangent", 28, 1, 25, 1),
    Sketcher.Constraint("Coincident", 30, 2, 31, 1),
    Sketcher.Constraint("Coincident", 31, 2, 32, 1),
    Sketcher.Constraint("Tangent", 32, 2, 33, 2),
    Sketcher.Constraint("Tangent", 33, 1, 30, 1),
    Sketcher.Constraint("Coincident", 35, 2, 36, 1),
    Sketcher.Constraint("Coincident", 36, 2, 37, 1),
    Sketcher.Constraint("Tangent", 37, 2, 38, 2),
    Sketcher.Constraint("Tangent", 38, 1, 35, 1),
    Sketcher.Constraint("Horizontal", 0),
    Sketcher.Constraint("Vertical", 1),
    Sketcher.Constraint("Horizontal", 2),
    Sketcher.Constraint("Horizontal", 5),
    Sketcher.Constraint("Vertical", 6),
    Sketcher.Constraint("Horizontal", 7),
    Sketcher.Constraint("Horizontal", 10),
    Sketcher.Constraint("Vertical", 11),
    Sketcher.Constraint("Horizontal", 12),
    Sketcher.Constraint("Vertical", 15),
    Sketcher.Constraint("Horizontal", 16),
    Sketcher.Constraint("Vertical", 17),
    Sketcher.Constraint("Vertical", 20),
    Sketcher.Constraint("Horizontal", 21),
    Sketcher.Constraint("Vertical", 22),
    Sketcher.Constraint("Horizontal", 25),
    Sketcher.Constraint("Vertical", 26),
    Sketcher.Constraint("Horizontal", 27),
    Sketcher.Constraint("Horizontal", 30),
    Sketcher.Constraint("Vertical", 31),
    Sketcher.Constraint("Horizontal", 32),
    Sketcher.Constraint("Horizontal", 35),
    Sketcher.Constraint("Vertical", 36),
    Sketcher.Constraint("Horizontal", 37),
    Sketcher.Constraint("Coincident", 4, 3, 3, 3),
    Sketcher.Constraint("Coincident", 9, 3, 8, 3),
    Sketcher.Constraint("Coincident", 14, 3, 13, 3),
    Sketcher.Constraint("Coincident", 19, 3, 18, 3),
    Sketcher.Constraint("Coincident", 24, 3, 23, 3),
    Sketcher.Constraint("Coincident", 29, 3, 28, 3),
    Sketcher.Constraint("Coincident", 34, 3, 33, 3),
    Sketcher.Constraint("Coincident", 39, 3, 38, 3),
    Sketcher.Constraint("Equal", 3, 8),
    Sketcher.Constraint("Equal", 4, 9),
    Sketcher.Constraint("Equal", 9, 14),
    Sketcher.Constraint("Equal", 8, 18),
    Sketcher.Constraint("Equal", 14, 19),
    Sketcher.Constraint("Equal", 18, 23),
    Sketcher.Constraint("Equal", 19, 24),
    Sketcher.Constraint("Equal", 23, 28),
    Sketcher.Constraint("Equal", 24, 29),
    Sketcher.Constraint("Equal", 28, 33),
    Sketcher.Constraint("Equal", 29, 34),
    Sketcher.Constraint("Equal", 33, 38),
    Sketcher.Constraint("Equal", 34, 39),
    Sketcher.Constraint("Symmetric", 6, 2, 35, 2, -1, 1),
    Sketcher.Constraint("Symmetric", 18, 3, 23, 3, -2),
    Sketcher.Constraint("Symmetric", 13, 3, 28, 3, -2),
    Sketcher.Constraint("Symmetric", 3, 3, 33, 3, -2),
    Sketcher.Constraint("Symmetric", 8, 3, 38, 3, -2),
    Sketcher.Constraint("Horizontal", 16, 2, 20, 2),
    Sketcher.Constraint("Vertical", 4, 3, 8, 3),
    Sketcher.Constraint("Vertical", 9, 3, 13, 3),
    Sketcher.Constraint("Vertical", 1, 2, 5, 2),
    Sketcher.Constraint("Vertical", 6, 2, 10, 2),
    Sketcher.Constraint("Vertical", 26, 2, 30, 2),
    Sketcher.Constraint("Vertical", 31, 2, 35, 2),
    Sketcher.Constraint("Equal", 37, 15),
    Sketcher.Constraint("Diameter", 4, 5.0),
    Sketcher.Constraint("Radius", 13, 3.0),
    Sketcher.Constraint("Radius", 3, 3.5),
    Sketcher.Constraint("DistanceX", 0, 1, 0, 2, 4.0),
    Sketcher.Constraint("DistanceX", 3, 3, -1, 1, 54.0),
    Sketcher.Constraint("DistanceY", -1, 1, 13, 3, 133.0),
    Sketcher.Constraint("DistanceY", -1, 1, 0, 2, 70.0),
    Sketcher.Constraint("DistanceX", -1, 1, 15, 2, 28.0),
    Sketcher.Constraint("DistanceY", 3, 3, 18, 3, 105.0),
])
sketch10.setExpression("Constraints[90]", "Params.sketch10_diameter")
sketch10.setExpression("Constraints[91]", "Params.sketch10_radius")
sketch10.setExpression("Constraints[92]", "Params.sketch10_radius2")
sketch10.setExpression("Constraints[93]", "Params.sketch10_width")
pad6 = body.newObject("PartDesign::Pad", "Pad005")
pad6.Profile = sketch10
pad6.setExpression("Length", "Params.pad6_length")

doc.recompute()
